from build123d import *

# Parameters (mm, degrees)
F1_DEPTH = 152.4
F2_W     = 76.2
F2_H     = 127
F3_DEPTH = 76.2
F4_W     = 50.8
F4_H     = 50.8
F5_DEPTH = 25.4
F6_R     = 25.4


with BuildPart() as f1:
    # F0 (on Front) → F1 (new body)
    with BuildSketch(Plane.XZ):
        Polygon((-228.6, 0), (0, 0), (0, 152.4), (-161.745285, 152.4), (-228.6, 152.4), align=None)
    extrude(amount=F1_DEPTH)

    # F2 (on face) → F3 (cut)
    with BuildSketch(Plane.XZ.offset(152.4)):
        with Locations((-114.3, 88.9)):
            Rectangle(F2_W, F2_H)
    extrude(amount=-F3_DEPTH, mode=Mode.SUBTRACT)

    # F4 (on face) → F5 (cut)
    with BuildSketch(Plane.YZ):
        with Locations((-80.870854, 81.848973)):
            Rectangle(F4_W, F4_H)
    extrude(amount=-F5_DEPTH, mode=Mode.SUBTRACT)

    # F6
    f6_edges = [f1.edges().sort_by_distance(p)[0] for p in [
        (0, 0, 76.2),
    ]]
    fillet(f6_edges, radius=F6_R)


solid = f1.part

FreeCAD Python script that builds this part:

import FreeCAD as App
import Part
import Sketcher

V = App.Vector
Q = App.Units.Quantity


def edges_at(feature, points):
    """Names of the edges that pass closest to the given points."""
    edges = feature.Shape.Edges
    near = lambda p: min(range(len(edges)), key=lambda i: edges[i].distToShape(Part.Vertex(*p))[0])
    return sorted({f"Edge{near(p) + 1}" for p in points})


def add_polygon(sketch, points):
    """Adds a closed chain of lines whose ends are joined by coincident constraints."""
    first, n = sketch.GeometryCount, len(points)
    for a, b in zip(points, points[1:] + points[:1]):
        sketch.addGeometry(Part.LineSegment(App.Vector(*a, 0), App.Vector(*b, 0)), False)
    for i in range(n):
        sketch.addConstraint(Sketcher.Constraint("Coincident", first + i, 2, first + (i + 1) % n, 1))

doc = App.newDocument("Part")
body = doc.addObject("PartDesign::Body", "Body")

sketch1 = body.newObject("Sketcher::SketchObject", "Sketch")
sketch1.AttachmentSupport = (doc.getObject("XZ_Plane"), [""])
sketch1.MapMode = "FlatFace"
add_polygon(sketch1, [(-229, 0), (0, 0), (0, 152), (-229, 152)])
sketch1.addConstraint(Sketcher.Constraint("Horizontal", 0))
sketch1.addConstraint(Sketcher.Constraint("Vertical", 1))
sketch1.addConstraint(Sketcher.Constraint("Horizontal", 2))
sketch1.addConstraint(Sketcher.Constraint("Vertical", 3))
sketch1.addConstraint(Sketcher.Constraint("Coincident", 0, 2, -1, 1))
sketch1.addConstraint(Sketcher.Constraint("DistanceX", 0, 1, 0, 2, Q("9 in")))
sketch1.addConstraint(Sketcher.Constraint("DistanceY", 1, 1, 1, 2, Q("6 in")))
pad1 = body.newObject("PartDesign::Pad", "Pad")
pad1.Profile = sketch1
pad1.Length = Q("6 in")

sketch2 = body.newObject("Sketcher::SketchObject", "Sketch001")
sketch2.AttachmentSupport = (doc.getObject("XZ_Plane"), [""])
sketch2.MapMode = "FlatFace"
sketch2.AttachmentOffset = App.Placement(V(0, 0, 6 * 25.4), App.Rotation())
add_polygon(sketch2, [(-152, 152), (-152, 25), (-76, 25), (-76, 152)])
sketch2.addConstraint(Sketcher.Constraint("Vertical", 0))
sketch2.addConstraint(Sketcher.Constraint("Horizontal", 1))
sketch2.addConstraint(Sketcher.Constraint("Vertical", 2))
sketch2.addConstraint(Sketcher.Constraint("Horizontal", 3))
sketch2.addConstraint(Sketcher.Constraint("DistanceX", 1, 1, 1, 2, Q("3 in")))
sketch2.addConstraint(Sketcher.Constraint("DistanceY", 0, 2, 0, 1, Q("5 in")))
sketch2.addConstraint(Sketcher.Constraint("DistanceX", 0, 2, -1, 1, Q("6 in")))
sketch2.addConstraint(Sketcher.Constraint("DistanceY", -1, 1, 0, 2, Q("1 in")))
pocket1 = body.newObject("PartDesign::Pocket", "Pocket")
pocket1.Profile = sketch2
pocket1.Length = Q("3 in")

sketch3 = body.newObject("Sketcher::SketchObject", "Sketch002")
sketch3.AttachmentSupport = (doc.getObject("YZ_Plane"), [""])
sketch3.MapMode = "FlatFace"
add_polygon(sketch3, [(-106, 107), (-106, 56), (-55, 56), (-55, 107)])
sketch3.addConstraint(Sketcher.Constraint("Vertical", 0))
sketch3.addConstraint(Sketcher.Constraint("Horizontal", 1))
sketch3.addConstraint(Sketcher.Constraint("Vertical", 2))
sketch3.addConstraint(Sketcher.Constraint("Horizontal", 3))
sketch3.addConstraint(Sketcher.Constraint("Equal", 3, 0))
sketch3.addConstraint(Sketcher.Constraint("DistanceX", 1, 1, 1, 2, Q("2 in")))
sketch3.addConstraint(Sketcher.Constraint("DistanceX", 0, 2, -1, 1, Q("106.270854 mm")))
sketch3.addConstraint(Sketcher.Constraint("DistanceY", -1, 1, 0, 2, Q("56.448973 mm")))
pocket2 = body.newObject("PartDesign::Pocket", "Pocket001")
pocket2.Profile = sketch3
pocket2.Length = Q("1 in")
doc.recompute()

fillet = body.newObject("PartDesign::Fillet", "Fillet")
fillet.Base = (pocket2, edges_at(pocket2, [(0, 0, 76.2)]))
fillet.Radius = Q("1 in")

doc.recompute()
